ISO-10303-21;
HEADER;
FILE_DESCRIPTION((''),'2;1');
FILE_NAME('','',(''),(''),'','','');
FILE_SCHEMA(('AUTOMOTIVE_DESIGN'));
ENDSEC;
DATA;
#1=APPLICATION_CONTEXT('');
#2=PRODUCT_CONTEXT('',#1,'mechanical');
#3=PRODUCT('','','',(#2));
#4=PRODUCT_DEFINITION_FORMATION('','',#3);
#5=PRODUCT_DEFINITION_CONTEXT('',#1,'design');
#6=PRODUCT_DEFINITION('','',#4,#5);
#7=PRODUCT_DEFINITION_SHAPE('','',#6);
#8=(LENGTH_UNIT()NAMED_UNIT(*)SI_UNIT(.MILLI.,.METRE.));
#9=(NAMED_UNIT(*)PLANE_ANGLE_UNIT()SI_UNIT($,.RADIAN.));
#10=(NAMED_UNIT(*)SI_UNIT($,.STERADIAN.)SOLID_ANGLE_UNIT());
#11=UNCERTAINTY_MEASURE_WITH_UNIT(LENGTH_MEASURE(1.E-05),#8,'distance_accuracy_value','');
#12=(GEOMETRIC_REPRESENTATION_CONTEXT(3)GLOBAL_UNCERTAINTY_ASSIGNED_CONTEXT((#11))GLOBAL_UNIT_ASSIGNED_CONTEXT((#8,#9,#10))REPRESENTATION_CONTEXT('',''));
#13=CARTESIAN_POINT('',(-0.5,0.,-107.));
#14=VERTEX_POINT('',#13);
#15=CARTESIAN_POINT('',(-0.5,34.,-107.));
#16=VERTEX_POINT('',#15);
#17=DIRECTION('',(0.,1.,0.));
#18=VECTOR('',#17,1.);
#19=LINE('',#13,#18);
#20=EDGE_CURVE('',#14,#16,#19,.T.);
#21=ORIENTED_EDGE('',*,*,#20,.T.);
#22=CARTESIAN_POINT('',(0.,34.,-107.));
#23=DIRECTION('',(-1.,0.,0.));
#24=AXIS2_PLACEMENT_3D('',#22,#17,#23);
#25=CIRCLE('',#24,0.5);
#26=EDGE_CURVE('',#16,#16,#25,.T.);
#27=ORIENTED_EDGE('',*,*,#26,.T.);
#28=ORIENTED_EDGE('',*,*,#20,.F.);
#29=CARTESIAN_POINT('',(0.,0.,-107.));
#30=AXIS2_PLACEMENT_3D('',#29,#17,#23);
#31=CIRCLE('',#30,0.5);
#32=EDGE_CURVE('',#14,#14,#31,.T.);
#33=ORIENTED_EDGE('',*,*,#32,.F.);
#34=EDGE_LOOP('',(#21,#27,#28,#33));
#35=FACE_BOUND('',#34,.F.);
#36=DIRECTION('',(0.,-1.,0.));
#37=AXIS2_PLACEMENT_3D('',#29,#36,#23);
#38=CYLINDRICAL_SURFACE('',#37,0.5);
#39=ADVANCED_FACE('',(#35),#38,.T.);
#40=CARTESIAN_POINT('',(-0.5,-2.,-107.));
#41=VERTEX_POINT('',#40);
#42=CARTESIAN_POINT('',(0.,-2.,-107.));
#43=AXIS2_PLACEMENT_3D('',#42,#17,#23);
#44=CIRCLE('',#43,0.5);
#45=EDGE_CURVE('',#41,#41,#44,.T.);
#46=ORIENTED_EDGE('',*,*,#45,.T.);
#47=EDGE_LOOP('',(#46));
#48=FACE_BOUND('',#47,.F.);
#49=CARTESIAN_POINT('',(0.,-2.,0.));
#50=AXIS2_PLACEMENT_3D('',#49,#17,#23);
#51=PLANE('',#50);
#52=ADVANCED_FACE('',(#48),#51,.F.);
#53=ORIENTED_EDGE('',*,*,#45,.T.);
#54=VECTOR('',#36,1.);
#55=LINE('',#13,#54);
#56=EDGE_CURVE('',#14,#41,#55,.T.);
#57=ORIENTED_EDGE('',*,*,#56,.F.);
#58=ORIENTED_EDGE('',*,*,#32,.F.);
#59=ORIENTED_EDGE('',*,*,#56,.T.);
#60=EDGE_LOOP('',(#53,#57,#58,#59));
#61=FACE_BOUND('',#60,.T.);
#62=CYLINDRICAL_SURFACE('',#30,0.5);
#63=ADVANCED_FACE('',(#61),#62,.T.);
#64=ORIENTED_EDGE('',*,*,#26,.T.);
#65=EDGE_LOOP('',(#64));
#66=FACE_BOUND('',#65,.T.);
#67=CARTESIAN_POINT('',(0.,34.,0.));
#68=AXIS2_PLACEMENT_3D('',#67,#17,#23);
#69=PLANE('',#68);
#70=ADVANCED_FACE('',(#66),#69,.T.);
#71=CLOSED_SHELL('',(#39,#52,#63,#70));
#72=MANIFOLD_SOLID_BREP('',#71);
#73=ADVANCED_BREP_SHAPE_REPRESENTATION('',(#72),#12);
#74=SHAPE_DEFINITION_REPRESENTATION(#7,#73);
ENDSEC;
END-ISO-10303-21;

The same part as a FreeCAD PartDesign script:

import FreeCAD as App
import Part
import Sketcher

doc = App.newDocument("Part")
params = doc.addObject("Spreadsheet::Sheet", "Params")
for row, (alias, value) in enumerate([
    ("sketch1_diameter", "1 mm"),
    ("pad1_length", "34 mm"),
    ("pad1_length2", "2 mm"),
], start=1):
    params.set(f"A{row}", alias)
    params.set(f"B{row}", "=" + value)
    params.setAlias(f"B{row}", alias)

body = doc.addObject("PartDesign::Body", "Body")

# Sketch on XZ plane
sketch1 = body.newObject("Sketcher::SketchObject", "Sketch")
sketch1.AttachmentSupport = (doc.getObject("XZ_Plane"), [""])
sketch1.MapMode = "FlatFace"
sketch1.addGeometry(Part.Circle(App.Vector(0, -107, 0), App.Vector(0, 0, 1), 0.5), False)
sketch1.addConstraint([
    Sketcher.Constraint("PointOnObject", 0, 3, -2),
    Sketcher.Constraint("Diameter", 0, 1.0),
    Sketcher.Constraint("DistanceY", 0, 3, -1, 1, 107.0),
])
sketch1.setExpression("Constraints[1]", "Params.sketch1_diameter")
pad1 = body.newObject("PartDesign::Pad", "Pad")
pad1.Profile = sketch1
pad1.Type = "TwoLengths"
pad1.setExpression("Length", "Params.pad1_length")
pad1.setExpression("Length2", "Params.pad1_length2")
pad1.Reversed = True

doc.recompute()
